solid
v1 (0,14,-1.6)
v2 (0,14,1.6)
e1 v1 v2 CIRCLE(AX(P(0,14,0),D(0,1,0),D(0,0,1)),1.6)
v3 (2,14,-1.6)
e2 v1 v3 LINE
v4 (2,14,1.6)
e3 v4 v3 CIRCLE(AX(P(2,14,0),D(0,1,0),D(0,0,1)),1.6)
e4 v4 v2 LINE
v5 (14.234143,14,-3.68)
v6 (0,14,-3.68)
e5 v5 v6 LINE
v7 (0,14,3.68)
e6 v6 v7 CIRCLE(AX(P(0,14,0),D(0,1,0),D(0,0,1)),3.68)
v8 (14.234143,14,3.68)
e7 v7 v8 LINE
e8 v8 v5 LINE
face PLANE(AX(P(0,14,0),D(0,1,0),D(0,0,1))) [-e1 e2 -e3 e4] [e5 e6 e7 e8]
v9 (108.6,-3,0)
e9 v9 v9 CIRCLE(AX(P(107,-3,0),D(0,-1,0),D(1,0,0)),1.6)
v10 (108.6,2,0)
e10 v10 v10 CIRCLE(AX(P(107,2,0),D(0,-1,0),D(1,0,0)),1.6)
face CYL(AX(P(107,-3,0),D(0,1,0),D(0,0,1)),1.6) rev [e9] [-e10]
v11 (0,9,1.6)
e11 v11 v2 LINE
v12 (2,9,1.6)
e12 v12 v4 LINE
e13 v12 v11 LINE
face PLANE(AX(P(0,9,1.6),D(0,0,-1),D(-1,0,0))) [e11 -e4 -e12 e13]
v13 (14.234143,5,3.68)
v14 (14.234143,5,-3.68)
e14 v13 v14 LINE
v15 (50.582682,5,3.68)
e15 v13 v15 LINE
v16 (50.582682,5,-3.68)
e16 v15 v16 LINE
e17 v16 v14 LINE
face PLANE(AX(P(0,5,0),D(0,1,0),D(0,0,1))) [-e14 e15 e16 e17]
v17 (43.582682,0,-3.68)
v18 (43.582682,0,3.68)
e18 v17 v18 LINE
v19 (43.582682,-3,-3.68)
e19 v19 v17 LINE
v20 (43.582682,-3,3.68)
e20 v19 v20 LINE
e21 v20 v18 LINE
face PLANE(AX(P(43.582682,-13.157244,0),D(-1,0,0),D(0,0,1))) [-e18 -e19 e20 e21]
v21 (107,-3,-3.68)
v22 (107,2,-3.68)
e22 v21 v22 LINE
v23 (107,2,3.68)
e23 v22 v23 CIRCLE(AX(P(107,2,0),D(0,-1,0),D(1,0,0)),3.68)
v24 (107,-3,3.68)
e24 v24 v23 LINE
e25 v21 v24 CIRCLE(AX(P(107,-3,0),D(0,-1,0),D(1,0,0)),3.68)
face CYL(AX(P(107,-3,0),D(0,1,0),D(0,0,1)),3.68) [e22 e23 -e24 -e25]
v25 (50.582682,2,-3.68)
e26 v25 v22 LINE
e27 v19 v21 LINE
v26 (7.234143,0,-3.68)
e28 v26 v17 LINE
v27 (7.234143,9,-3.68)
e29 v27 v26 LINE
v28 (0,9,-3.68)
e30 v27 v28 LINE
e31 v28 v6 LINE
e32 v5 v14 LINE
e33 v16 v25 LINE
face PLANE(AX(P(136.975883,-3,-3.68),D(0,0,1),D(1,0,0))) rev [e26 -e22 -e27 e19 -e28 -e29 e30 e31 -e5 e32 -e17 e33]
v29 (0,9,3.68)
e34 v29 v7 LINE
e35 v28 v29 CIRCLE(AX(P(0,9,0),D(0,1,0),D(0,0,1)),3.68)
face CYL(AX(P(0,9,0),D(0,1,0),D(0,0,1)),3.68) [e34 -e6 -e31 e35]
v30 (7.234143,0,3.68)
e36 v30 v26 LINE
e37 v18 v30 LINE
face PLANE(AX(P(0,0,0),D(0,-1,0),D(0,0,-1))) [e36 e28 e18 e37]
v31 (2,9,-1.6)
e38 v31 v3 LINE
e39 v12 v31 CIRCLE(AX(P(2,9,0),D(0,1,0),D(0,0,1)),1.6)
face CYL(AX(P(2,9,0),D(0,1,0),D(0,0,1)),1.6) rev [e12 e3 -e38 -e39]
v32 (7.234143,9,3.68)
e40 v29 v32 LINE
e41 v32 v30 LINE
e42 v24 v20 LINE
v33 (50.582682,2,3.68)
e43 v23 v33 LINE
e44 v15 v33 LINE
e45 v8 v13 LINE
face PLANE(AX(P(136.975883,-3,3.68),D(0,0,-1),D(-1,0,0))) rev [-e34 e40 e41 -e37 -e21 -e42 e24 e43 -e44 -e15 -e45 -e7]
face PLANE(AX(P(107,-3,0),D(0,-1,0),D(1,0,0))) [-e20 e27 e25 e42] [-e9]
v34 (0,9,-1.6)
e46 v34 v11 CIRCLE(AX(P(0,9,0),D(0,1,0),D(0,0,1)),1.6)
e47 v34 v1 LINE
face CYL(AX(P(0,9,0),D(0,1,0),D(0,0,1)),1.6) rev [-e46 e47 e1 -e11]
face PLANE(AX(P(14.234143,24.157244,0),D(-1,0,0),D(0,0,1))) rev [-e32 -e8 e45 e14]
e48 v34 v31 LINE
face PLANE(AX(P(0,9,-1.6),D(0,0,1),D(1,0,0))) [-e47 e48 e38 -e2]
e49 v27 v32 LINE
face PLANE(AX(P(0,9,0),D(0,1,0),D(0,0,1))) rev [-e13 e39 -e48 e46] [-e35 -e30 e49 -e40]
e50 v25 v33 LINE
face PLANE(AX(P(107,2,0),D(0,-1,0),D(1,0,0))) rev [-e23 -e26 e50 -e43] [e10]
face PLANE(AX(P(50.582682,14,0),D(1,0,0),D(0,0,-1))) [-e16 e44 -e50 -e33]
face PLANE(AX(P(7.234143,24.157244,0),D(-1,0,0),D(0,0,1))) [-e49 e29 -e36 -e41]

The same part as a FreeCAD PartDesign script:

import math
import FreeCAD as App
import Part
import Sketcher

V = App.Vector
Q = App.Units.Quantity

doc = App.newDocument("Part")
body = doc.addObject("PartDesign::Body", "Body")

# Sketch on XZ plane
sketch1 = body.newObject("Sketcher::SketchObject", "Sketch")
sketch1.AttachmentSupport = (doc.getObject("XZ_Plane"), [""])
sketch1.MapMode = "FlatFace"
sketch1.addGeometry(Part.LineSegment(V(107, -3.7, 0), V(0, -3.7, 0)), False)
sketch1.addGeometry(Part.ArcOfCircle(Part.Circle(V(0, 0, 0), V(0, 0, 1), 3.7), math.radians(90), math.radians(270)), False)
sketch1.addGeometry(Part.LineSegment(V(0, 3.7, 0), V(107, 3.7, 0)), False)
sketch1.addGeometry(Part.ArcOfCircle(Part.Circle(V(107, 0, 0), V(0, 0, 1), 3.7), math.radians(-90), math.radians(90)), False)
sketch1.addGeometry(Part.Circle(V(107, 0, 0), V(0, 0, 1), 1.6), False)
sketch1.addGeometry(Part.LineSegment(V(0, -1.6, 0), V(2, -1.6, 0)), False)
sketch1.addGeometry(Part.ArcOfCircle(Part.Circle(V(2, 0, 0), V(0, 0, 1), 1.6), math.radians(-90), math.radians(90)), False)
sketch1.addGeometry(Part.LineSegment(V(2, 1.6, 0), V(0, 1.6, 0)), False)
sketch1.addGeometry(Part.ArcOfCircle(Part.Circle(V(0, 0, 0), V(0, 0, 1), 1.6), math.radians(90), math.radians(270)), False)
sketch1.addConstraint(Sketcher.Constraint("Tangent", 0, 2, 1, 2))
sketch1.addConstraint(Sketcher.Constraint("Tangent", 1, 1, 2, 1))
sketch1.addConstraint(Sketcher.Constraint("Tangent", 2, 2, 3, 2))
sketch1.addConstraint(Sketcher.Constraint("Tangent", 3, 1, 0, 1))
sketch1.addConstraint(Sketcher.Constraint("Tangent", 5, 2, 6, 1))
sketch1.addConstraint(Sketcher.Constraint("Tangent", 6, 2, 7, 1))
sketch1.addConstraint(Sketcher.Constraint("Tangent", 7, 2, 8, 1))
sketch1.addConstraint(Sketcher.Constraint("Tangent", 8, 2, 5, 1))
sketch1.addConstraint(Sketcher.Constraint("Horizontal", 0))
sketch1.addConstraint(Sketcher.Constraint("Horizontal", 2))
sketch1.addConstraint(Sketcher.Constraint("Horizontal", 5))
sketch1.addConstraint(Sketcher.Constraint("Horizontal", 7))
sketch1.addConstraint(Sketcher.Constraint("Coincident", 1, 3, -1, 1))
sketch1.addConstraint(Sketcher.Constraint("Coincident", 8, 3, -1, 1))
sketch1.addConstraint(Sketcher.Constraint("Coincident", 4, 3, 3, 3))
sketch1.addConstraint(Sketcher.Constraint("Equal", 4, 6))
sketch1.addConstraint(Sketcher.Constraint("Diameter", 4, Q("3.2 mm")))
sketch1.addConstraint(Sketcher.Constraint("DistanceX", 0, 2, 0, 1, Q("107 mm")))
sketch1.addConstraint(Sketcher.Constraint("DistanceX", 5, 1, 5, 2, Q("2 mm")))
sketch1.addConstraint(Sketcher.Constraint("Radius", 1, Q("3.68 mm")))
pad1 = body.newObject("PartDesign::Pad", "Pad")
pad1.Profile = sketch1
pad1.Length = 5
pad1.Reversed = True

# Sketch on XZ plane
sketch2 = body.newObject("Sketcher::SketchObject", "Sketch001")
sketch2.AttachmentSupport = (doc.getObject("XZ_Plane"), [""])
sketch2.MapMode = "FlatFace"
sketch2.addGeometry(Part.ArcOfCircle(Part.Circle(V(0, 0, 0), V(0, 0, 1), 3.7), math.radians(90), math.radians(270)), False)
sketch2.addGeometry(Part.LineSegment(V(0, -3.7, 0), V(7.2, -3.7, 0)), False)
sketch2.addGeometry(Part.LineSegment(V(7.2, -3.7, 0), V(7.2, 3.7, 0)), False)
sketch2.addGeometry(Part.LineSegment(V(7.2, 3.7, 0), V(0, 3.7, 0)), False)
sketch2.addGeometry(Part.LineSegment(V(2, -1.6, 0), V(0, -1.6, 0)), False)
sketch2.addGeometry(Part.ArcOfCircle(Part.Circle(V(0, 0, 0), V(0, 0, 1), 1.6), math.radians(90), math.radians(270)), False)
sketch2.addGeometry(Part.LineSegment(V(0, 1.6, 0), V(2, 1.6, 0)), False)
sketch2.addGeometry(Part.ArcOfCircle(Part.Circle(V(2, 0, 0), V(0, 0, 1), 1.6), math.radians(-90), math.radians(90)), False)
sketch2.addConstraint(Sketcher.Constraint("Tangent", 0, 2, 1, 1))
sketch2.addConstraint(Sketcher.Constraint("Coincident", 1, 2, 2, 1))
sketch2.addConstraint(Sketcher.Constraint("Coincident", 2, 2, 3, 1))
sketch2.addConstraint(Sketcher.Constraint("Tangent", 3, 2, 0, 1))
sketch2.addConstraint(Sketcher.Constraint("Tangent", 4, 2, 5, 2))
sketch2.addConstraint(Sketcher.Constraint("Tangent", 5, 1, 6, 1))
sketch2.addConstraint(Sketcher.Constraint("Tangent", 6, 2, 7, 2))
sketch2.addConstraint(Sketcher.Constraint("Tangent", 7, 1, 4, 1))
sketch2.addConstraint(Sketcher.Constraint("Horizontal", 1))
sketch2.addConstraint(Sketcher.Constraint("Vertical", 2))
sketch2.addConstraint(Sketcher.Constraint("Horizontal", 3))
sketch2.addConstraint(Sketcher.Constraint("Horizontal", 4))
sketch2.addConstraint(Sketcher.Constraint("Horizontal", 6))
sketch2.addConstraint(Sketcher.Constraint("Coincident", 0, 3, -1, 1))
sketch2.addConstraint(Sketcher.Constraint("Coincident", 5, 3, -1, 1))
sketch2.addConstraint(Sketcher.Constraint("Radius", 5, Q("1.6 mm")))
sketch2.addConstraint(Sketcher.Constraint("DistanceX", 4, 2, 4, 1, Q("2 mm")))
sketch2.addConstraint(Sketcher.Constraint("Radius", 0, Q("3.68 mm")))
sketch2.addConstraint(Sketcher.Constraint("DistanceX", 1, 1, 1, 2, Q("7.234143 mm")))
pocket1 = body.newObject("PartDesign::Pocket", "Pocket")
pocket1.Profile = sketch2
pocket1.Length = 5
body2 = doc.addObject("PartDesign::Body", "Body001")

# Sketch on XZ plane
sketch3 = body2.newObject("Sketcher::SketchObject", "Sketch002")
sketch3.AttachmentSupport = (doc.getObject("XZ_Plane001"), [""])
sketch3.MapMode = "FlatFace"
sketch3.AttachmentOffset = App.Placement(V(0, 0, -14), App.Rotation())
sketch3.addGeometry(Part.ArcOfCircle(Part.Circle(V(0, 0, 0), V(0, 0, 1), 3.7), math.radians(90), math.radians(270)), False)
sketch3.addGeometry(Part.LineSegment(V(0, -3.7, 0), V(7.2, -3.7, 0)), False)
sketch3.addGeometry(Part.LineSegment(V(7.2, -3.7, 0), V(7.2, 3.7, 0)), False)
sketch3.addGeometry(Part.LineSegment(V(7.2, 3.7, 0), V(0, 3.7, 0)), False)
sketch3.addGeometry(Part.LineSegment(V(2, -1.6, 0), V(0, -1.6, 0)), False)
sketch3.addGeometry(Part.ArcOfCircle(Part.Circle(V(0, 0, 0), V(0, 0, 1), 1.6), math.radians(90), math.radians(270)), False)
sketch3.addGeometry(Part.LineSegment(V(0, 1.6, 0), V(2, 1.6, 0)), False)
sketch3.addGeometry(Part.ArcOfCircle(Part.Circle(V(2, 0, 0), V(0, 0, 1), 1.6), math.radians(-90), math.radians(90)), False)
sketch3.addConstraint(Sketcher.Constraint("Tangent", 0, 2, 1, 1))
sketch3.addConstraint(Sketcher.Constraint("Coincident", 1, 2, 2, 1))
sketch3.addConstraint(Sketcher.Constraint("Coincident", 2, 2, 3, 1))
sketch3.addConstraint(Sketcher.Constraint("Tangent", 3, 2, 0, 1))
sketch3.addConstraint(Sketcher.Constraint("Tangent", 4, 2, 5, 2))
sketch3.addConstraint(Sketcher.Constraint("Tangent", 5, 1, 6, 1))
sketch3.addConstraint(Sketcher.Constraint("Tangent", 6, 2, 7, 2))
sketch3.addConstraint(Sketcher.Constraint("Tangent", 7, 1, 4, 1))
sketch3.addConstraint(Sketcher.Constraint("Horizontal", 1))
sketch3.addConstraint(Sketcher.Constraint("Vertical", 2))
sketch3.addConstraint(Sketcher.Constraint("Horizontal", 3))
sketch3.addConstraint(Sketcher.Constraint("Horizontal", 4))
sketch3.addConstraint(Sketcher.Constraint("Horizontal", 6))
sketch3.addConstraint(Sketcher.Constraint("Coincident", 0, 3, -1, 1))
sketch3.addConstraint(Sketcher.Constraint("Coincident", 5, 3, -1, 1))
sketch3.addConstraint(Sketcher.Constraint("Radius", 5, Q("1.6 mm")))
sketch3.addConstraint(Sketcher.Constraint("DistanceX", 4, 2, 4, 1, Q("2 mm")))
sketch3.addConstraint(Sketcher.Constraint("Radius", 0, Q("3.68 mm")))
sketch3.addConstraint(Sketcher.Constraint("DistanceX", 1, 1, 1, 2, Q("7.234143 mm")))
pad2 = body2.newObject("PartDesign::Pad", "Pad001")
pad2.Profile = sketch3
pad2.Length = 5
body.AllowCompound = True
doc.recompute()

boolean = body.newObject("PartDesign::Boolean", "Boolean")
boolean.Type = "Fuse"
boolean.addObjects([body2])

# Sketch on XZ plane
sketch4 = body.newObject("Sketcher::SketchObject", "Sketch003")
sketch4.AttachmentSupport = (doc.getObject("XZ_Plane"), [""])
sketch4.MapMode = "FlatFace"
sketch4.addGeometry(Part.LineSegment(V(7, 4, 0), V(7, -4, 0)), False)
sketch4.addGeometry(Part.LineSegment(V(7, -4, 0), V(14, -4, 0)), False)
sketch4.addGeometry(Part.LineSegment(V(14, -4, 0), V(14, 4, 0)), False)
sketch4.addGeometry(Part.LineSegment(V(14, 4, 0), V(7, 4, 0)), False)
sketch4.addConstraint(Sketcher.Constraint("Coincident", 0, 2, 1, 1))
sketch4.addConstraint(Sketcher.Constraint("Coincident", 1, 2, 2, 1))
sketch4.addConstraint(Sketcher.Constraint("Coincident", 2, 2, 3, 1))
sketch4.addConstraint(Sketcher.Constraint("Coincident", 3, 2, 0, 1))
sketch4.addConstraint(Sketcher.Constraint("Vertical", 0))
sketch4.addConstraint(Sketcher.Constraint("Horizontal", 1))
sketch4.addConstraint(Sketcher.Constraint("Vertical", 2))
sketch4.addConstraint(Sketcher.Constraint("Horizontal", 3))
sketch4.addConstraint(Sketcher.Constraint("DistanceX", 1, 1, 1, 2, Q("7 mm")))
sketch4.addConstraint(Sketcher.Constraint("DistanceY", 0, 2, 0, 1, Q("7.36 mm")))
sketch4.addConstraint(Sketcher.Constraint("DistanceY", 0, 2, -1, 1, Q("3.68 mm")))
sketch4.addConstraint(Sketcher.Constraint("DistanceX", -1, 1, 0, 2, Q("7.234143 mm")))
pad3 = body.newObject("PartDesign::Pad", "Pad002")
pad3.Profile = sketch4
pad3.Length = 14
pad3.Reversed = True

# Sketch on XZ plane
sketch5 = body.newObject("Sketcher::SketchObject", "Sketch004")
sketch5.AttachmentSupport = (doc.getObject("XZ_Plane"), [""])
sketch5.MapMode = "FlatFace"
sketch5.addGeometry(Part.ArcOfCircle(Part.Circle(V(107, 0, 0), V(0, 0, 1), 3.7), math.radians(0), math.radians(90)), False)
sketch5.addGeometry(Part.LineSegment(V(107, 3.7, 0), V(50.6, 3.7, 0)), False)
sketch5.addGeometry(Part.LineSegment(V(50.6, 3.7, 0), V(50.6, -3.7, 0)), False)
sketch5.addGeometry(Part.LineSegment(V(50.6, -3.7, 0), V(107, -3.7, 0)), False)
sketch5.addGeometry(Part.ArcOfCircle(Part.Circle(V(107, 0, 0), V(0, 0, 1), 3.7), math.radians(-90), math.radians(0)), False)
sketch5.addGeometry(Part.Circle(V(107, 0, 0), V(0, 0, 1), 1.6), False)
sketch5.addConstraint(Sketcher.Constraint("Tangent", 0, 2, 1, 1))
sketch5.addConstraint(Sketcher.Constraint("Coincident", 1, 2, 2, 1))
sketch5.addConstraint(Sketcher.Constraint("Coincident", 2, 2, 3, 1))
sketch5.addConstraint(Sketcher.Constraint("Tangent", 3, 2, 4, 1))
sketch5.addConstraint(Sketcher.Constraint("Tangent", 4, 2, 0, 1))
sketch5.addConstraint(Sketcher.Constraint("Horizontal", 1))
sketch5.addConstraint(Sketcher.Constraint("Vertical", 2))
sketch5.addConstraint(Sketcher.Constraint("Horizontal", 3))
sketch5.addConstraint(Sketcher.Constraint("Coincident", 5, 3, 0, 3))
sketch5.addConstraint(Sketcher.Constraint("Equal", 0, 4))
sketch5.addConstraint(Sketcher.Constraint("PointOnObject", 0, 3, -1))
sketch5.addConstraint(Sketcher.Constraint("PointOnObject", 4, 2, -1))
sketch5.addConstraint(Sketcher.Constraint("Diameter", 5, Q("3.2 mm")))
sketch5.addConstraint(Sketcher.Constraint("Radius", 0, Q("3.68 mm")))
sketch5.addConstraint(Sketcher.Constraint("DistanceX", -1, 1, 0, 3, Q("107 mm")))
sketch5.addConstraint(Sketcher.Constraint("DistanceX", 1, 2, 1, 1, Q("56.417318 mm")))
pocket2 = body.newObject("PartDesign::Pocket", "Pocket001")
pocket2.Profile = sketch5
pocket2.Length = 112.6226
body3 = doc.addObject("PartDesign::Body", "Body002")

# Sketch on XZ plane
sketch6 = body3.newObject("Sketcher::SketchObject", "Sketch005")
sketch6.AttachmentSupport = (doc.getObject("XZ_Plane002"), [""])
sketch6.MapMode = "FlatFace"
sketch6.AttachmentOffset = App.Placement(V(0, 0, -2), App.Rotation())
sketch6.addGeometry(Part.LineSegment(V(107, 3.7, 0), V(50.6, 3.7, 0)), False)
sketch6.addGeometry(Part.LineSegment(V(50.6, 3.7, 0), V(50.6, -3.7, 0)), False)
sketch6.addGeometry(Part.LineSegment(V(50.6, -3.7, 0), V(107, -3.7, 0)), False)
sketch6.addGeometry(Part.ArcOfCircle(Part.Circle(V(107, 0, 0), V(0, 0, 1), 3.7), math.radians(-90), math.radians(0)), False)
sketch6.addGeometry(Part.ArcOfCircle(Part.Circle(V(107, 0, 0), V(0, 0, 1), 3.7), math.radians(0), math.radians(90)), False)
sketch6.addGeometry(Part.Circle(V(107, 0, 0), V(0, 0, 1), 1.6), False)
sketch6.addConstraint(Sketcher.Constraint("Coincident", 0, 2, 1, 1))
sketch6.addConstraint(Sketcher.Constraint("Coincident", 1, 2, 2, 1))
sketch6.addConstraint(Sketcher.Constraint("Tangent", 2, 2, 3, 1))
sketch6.addConstraint(Sketcher.Constraint("Tangent", 3, 2, 4, 1))
sketch6.addConstraint(Sketcher.Constraint("Tangent", 4, 2, 0, 1))
sketch6.addConstraint(Sketcher.Constraint("Horizontal", 0))
sketch6.addConstraint(Sketcher.Constraint("Vertical", 1))
sketch6.addConstraint(Sketcher.Constraint("Horizontal", 2))
sketch6.addConstraint(Sketcher.Constraint("Coincident", 5, 3, 3, 3))
sketch6.addConstraint(Sketcher.Constraint("Equal", 3, 4))
sketch6.addConstraint(Sketcher.Constraint("PointOnObject", 3, 3, -1))
sketch6.addConstraint(Sketcher.Constraint("PointOnObject", 3, 2, -1))
sketch6.addConstraint(Sketcher.Constraint("Diameter", 5, Q("3.2 mm")))
sketch6.addConstraint(Sketcher.Constraint("Radius", 3, Q("3.68 mm")))
sketch6.addConstraint(Sketcher.Constraint("DistanceX", -1, 1, 3, 3, Q("107 mm")))
sketch6.addConstraint(Sketcher.Constraint("DistanceX", 0, 2, 0, 1, Q("56.417318 mm")))
pad4 = body3.newObject("PartDesign::Pad", "Pad003")
pad4.Profile = sketch6
pad4.Length = 5
doc.recompute()

boolean2 = body.newObject("PartDesign::Boolean", "Boolean001")
boolean2.Type = "Fuse"
boolean2.addObjects([body3])

# Sketch on XZ plane
sketch7 = body.newObject("Sketcher::SketchObject", "Sketch006")
sketch7.AttachmentSupport = (doc.getObject("XZ_Plane"), [""])
sketch7.MapMode = "FlatFace"
sketch7.addGeometry(Part.LineSegment(V(44, 4, 0), V(44, -4, 0)), False)
sketch7.addGeometry(Part.LineSegment(V(44, -4, 0), V(51, -4, 0)), False)
sketch7.addGeometry(Part.LineSegment(V(51, -4, 0), V(51, 4, 0)), False)
sketch7.addGeometry(Part.LineSegment(V(51, 4, 0), V(44, 4, 0)), False)
sketch7.addConstraint(Sketcher.Constraint("Coincident", 0, 2, 1, 1))
sketch7.addConstraint(Sketcher.Constraint("Coincident", 1, 2, 2, 1))
sketch7.addConstraint(Sketcher.Constraint("Coincident", 2, 2, 3, 1))
sketch7.addConstraint(Sketcher.Constraint("Coincident", 3, 2, 0, 1))
sketch7.addConstraint(Sketcher.Constraint("Vertical", 0))
sketch7.addConstraint(Sketcher.Constraint("Horizontal", 1))
sketch7.addConstraint(Sketcher.Constraint("Vertical", 2))
sketch7.addConstraint(Sketcher.Constraint("Horizontal", 3))
sketch7.addConstraint(Sketcher.Constraint("DistanceX", 1, 1, 1, 2, Q("7 mm")))
sketch7.addConstraint(Sketcher.Constraint("DistanceY", 0, 2, 0, 1, Q("7.36 mm")))
sketch7.addConstraint(Sketcher.Constraint("DistanceY", 0, 2, -1, 1, Q("3.68 mm")))
sketch7.addConstraint(Sketcher.Constraint("DistanceX", -1, 1, 0, 2, Q("43.582682 mm")))
pad5 = body.newObject("PartDesign::Pad", "Pad004")
pad5.Profile = sketch7
pad5.Length = 3

doc.recompute()
